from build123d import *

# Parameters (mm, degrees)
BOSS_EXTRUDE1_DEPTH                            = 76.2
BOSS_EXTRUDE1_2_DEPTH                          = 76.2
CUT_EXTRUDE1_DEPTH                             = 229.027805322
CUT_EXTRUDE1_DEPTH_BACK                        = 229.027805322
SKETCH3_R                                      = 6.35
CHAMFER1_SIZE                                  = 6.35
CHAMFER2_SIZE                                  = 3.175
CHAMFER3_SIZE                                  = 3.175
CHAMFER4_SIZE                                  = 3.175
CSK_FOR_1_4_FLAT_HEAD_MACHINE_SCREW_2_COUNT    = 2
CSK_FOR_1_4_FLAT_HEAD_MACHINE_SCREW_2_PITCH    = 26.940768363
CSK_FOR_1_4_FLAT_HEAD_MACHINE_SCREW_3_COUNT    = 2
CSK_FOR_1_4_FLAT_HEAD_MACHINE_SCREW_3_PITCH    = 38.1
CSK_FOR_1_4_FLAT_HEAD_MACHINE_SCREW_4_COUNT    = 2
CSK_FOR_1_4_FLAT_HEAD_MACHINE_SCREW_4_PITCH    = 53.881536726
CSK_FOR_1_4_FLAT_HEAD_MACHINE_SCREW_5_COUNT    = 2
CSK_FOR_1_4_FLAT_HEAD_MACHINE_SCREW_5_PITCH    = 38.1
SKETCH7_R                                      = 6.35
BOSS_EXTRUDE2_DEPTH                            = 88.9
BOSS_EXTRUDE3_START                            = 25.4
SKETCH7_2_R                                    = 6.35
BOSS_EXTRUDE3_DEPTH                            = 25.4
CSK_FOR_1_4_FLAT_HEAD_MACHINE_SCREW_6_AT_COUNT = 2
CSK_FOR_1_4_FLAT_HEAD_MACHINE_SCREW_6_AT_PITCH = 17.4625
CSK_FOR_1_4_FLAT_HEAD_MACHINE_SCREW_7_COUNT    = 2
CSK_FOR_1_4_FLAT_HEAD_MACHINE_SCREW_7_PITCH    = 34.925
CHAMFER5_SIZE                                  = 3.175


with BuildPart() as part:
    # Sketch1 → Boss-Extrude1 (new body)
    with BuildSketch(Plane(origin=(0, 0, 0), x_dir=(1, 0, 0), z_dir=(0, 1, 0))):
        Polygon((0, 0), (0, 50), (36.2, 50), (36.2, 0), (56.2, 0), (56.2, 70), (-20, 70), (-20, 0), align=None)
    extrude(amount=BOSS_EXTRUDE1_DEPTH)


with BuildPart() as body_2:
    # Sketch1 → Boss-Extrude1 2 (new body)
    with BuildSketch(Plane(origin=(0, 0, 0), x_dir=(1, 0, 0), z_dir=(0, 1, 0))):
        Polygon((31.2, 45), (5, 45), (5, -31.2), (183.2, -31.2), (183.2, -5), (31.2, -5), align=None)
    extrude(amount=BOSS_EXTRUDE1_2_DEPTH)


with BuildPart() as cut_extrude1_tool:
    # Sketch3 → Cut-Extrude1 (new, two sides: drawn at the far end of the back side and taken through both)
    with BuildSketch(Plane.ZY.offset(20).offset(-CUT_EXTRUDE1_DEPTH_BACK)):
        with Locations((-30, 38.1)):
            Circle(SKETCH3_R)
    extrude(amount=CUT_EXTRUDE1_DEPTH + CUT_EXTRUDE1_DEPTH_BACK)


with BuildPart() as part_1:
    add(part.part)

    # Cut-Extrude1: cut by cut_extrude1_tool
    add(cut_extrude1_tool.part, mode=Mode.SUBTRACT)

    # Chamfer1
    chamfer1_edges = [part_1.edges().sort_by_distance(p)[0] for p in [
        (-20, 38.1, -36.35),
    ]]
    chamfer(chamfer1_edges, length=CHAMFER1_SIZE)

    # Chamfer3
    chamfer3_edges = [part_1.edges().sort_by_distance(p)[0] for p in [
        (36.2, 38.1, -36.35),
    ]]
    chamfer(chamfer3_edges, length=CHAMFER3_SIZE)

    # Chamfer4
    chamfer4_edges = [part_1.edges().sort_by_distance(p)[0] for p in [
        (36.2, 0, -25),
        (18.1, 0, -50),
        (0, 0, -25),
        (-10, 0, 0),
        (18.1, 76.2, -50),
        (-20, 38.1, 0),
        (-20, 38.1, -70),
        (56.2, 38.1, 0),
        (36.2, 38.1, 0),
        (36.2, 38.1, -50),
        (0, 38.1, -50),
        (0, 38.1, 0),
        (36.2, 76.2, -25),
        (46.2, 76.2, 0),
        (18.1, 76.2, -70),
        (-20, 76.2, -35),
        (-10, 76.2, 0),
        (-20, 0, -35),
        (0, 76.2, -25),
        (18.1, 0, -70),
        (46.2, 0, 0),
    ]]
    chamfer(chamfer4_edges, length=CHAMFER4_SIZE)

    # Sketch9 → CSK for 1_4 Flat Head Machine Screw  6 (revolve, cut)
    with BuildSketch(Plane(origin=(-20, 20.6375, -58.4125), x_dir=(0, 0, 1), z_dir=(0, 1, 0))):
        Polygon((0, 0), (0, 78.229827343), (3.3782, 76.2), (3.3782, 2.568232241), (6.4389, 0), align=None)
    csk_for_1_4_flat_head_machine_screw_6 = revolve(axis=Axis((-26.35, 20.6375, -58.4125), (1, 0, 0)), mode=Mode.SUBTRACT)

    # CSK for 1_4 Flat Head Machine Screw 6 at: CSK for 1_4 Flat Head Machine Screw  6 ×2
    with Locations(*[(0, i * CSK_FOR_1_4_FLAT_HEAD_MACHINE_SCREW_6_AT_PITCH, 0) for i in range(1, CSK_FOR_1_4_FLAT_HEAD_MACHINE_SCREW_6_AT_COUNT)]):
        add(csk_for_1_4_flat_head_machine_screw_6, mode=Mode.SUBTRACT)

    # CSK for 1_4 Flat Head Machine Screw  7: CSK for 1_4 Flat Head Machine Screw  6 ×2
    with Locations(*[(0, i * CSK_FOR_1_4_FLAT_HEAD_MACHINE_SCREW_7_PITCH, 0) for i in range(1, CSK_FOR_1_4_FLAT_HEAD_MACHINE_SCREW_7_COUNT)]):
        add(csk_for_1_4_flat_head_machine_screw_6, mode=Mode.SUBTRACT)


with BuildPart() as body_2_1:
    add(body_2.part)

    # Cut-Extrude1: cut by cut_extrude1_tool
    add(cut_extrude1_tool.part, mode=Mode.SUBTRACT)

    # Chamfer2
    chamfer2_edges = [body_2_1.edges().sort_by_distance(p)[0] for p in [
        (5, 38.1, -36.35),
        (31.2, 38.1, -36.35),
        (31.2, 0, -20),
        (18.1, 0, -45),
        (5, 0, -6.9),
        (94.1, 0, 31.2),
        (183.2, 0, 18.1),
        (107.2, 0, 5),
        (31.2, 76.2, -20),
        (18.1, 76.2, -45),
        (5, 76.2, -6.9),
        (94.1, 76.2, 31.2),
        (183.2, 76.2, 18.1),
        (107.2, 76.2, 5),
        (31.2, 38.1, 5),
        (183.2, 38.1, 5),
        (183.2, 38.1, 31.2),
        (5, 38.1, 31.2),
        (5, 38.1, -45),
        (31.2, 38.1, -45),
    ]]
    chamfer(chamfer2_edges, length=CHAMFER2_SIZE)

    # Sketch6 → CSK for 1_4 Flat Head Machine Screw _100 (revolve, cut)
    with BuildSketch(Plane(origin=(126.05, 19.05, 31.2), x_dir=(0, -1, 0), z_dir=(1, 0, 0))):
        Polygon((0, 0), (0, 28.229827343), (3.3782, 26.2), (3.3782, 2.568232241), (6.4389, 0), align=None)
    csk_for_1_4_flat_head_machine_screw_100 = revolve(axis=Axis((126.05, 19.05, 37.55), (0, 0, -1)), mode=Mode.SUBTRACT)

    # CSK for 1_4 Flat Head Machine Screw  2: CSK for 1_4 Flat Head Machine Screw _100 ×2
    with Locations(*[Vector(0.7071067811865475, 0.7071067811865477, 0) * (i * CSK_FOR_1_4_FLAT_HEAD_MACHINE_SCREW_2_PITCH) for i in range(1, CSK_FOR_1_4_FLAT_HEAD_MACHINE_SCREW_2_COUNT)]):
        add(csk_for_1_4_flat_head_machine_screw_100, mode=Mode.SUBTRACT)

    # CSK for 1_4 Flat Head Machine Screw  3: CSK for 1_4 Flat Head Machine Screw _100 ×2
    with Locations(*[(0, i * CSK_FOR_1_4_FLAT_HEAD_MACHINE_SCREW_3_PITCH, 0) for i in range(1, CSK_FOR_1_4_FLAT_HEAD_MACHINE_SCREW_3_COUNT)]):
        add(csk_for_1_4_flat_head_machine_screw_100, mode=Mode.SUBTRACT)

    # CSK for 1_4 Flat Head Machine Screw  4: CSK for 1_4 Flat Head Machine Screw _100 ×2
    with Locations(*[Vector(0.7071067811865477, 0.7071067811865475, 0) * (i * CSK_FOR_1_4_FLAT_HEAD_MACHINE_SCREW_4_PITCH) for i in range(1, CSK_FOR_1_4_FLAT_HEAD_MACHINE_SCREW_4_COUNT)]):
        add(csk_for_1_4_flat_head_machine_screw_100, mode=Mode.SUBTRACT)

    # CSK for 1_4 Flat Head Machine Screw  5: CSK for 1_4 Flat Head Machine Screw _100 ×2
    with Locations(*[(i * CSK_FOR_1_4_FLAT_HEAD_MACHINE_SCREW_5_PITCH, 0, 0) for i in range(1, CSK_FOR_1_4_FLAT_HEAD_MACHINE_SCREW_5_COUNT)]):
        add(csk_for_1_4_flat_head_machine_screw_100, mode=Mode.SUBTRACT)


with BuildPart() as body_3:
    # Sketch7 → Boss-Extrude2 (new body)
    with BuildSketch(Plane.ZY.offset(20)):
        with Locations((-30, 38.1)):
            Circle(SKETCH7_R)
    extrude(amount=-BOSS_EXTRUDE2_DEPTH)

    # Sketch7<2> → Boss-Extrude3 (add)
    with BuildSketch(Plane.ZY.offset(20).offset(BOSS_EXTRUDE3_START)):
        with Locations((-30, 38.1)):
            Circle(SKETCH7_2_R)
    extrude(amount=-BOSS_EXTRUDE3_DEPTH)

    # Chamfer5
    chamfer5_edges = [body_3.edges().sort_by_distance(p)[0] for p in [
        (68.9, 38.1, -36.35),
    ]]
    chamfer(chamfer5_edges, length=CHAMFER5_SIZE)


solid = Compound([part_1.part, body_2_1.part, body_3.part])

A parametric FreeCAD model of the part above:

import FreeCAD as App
import Part
import Sketcher
from FreeCAD import Vector
Q = App.Units.Quantity


def edges_at(feature, points):
    """Names of the edges that pass closest to the given points."""
    edges = feature.Shape.Edges
    near = lambda p: min(range(len(edges)), key=lambda i: edges[i].distToShape(Part.Vertex(*p))[0])
    return sorted({f"Edge{near(p) + 1}" for p in points})


def add_polygon(sketch, points):
    """Adds a closed chain of lines whose ends are joined by coincident constraints."""
    first, n = sketch.GeometryCount, len(points)
    for a, b in zip(points, points[1:] + points[:1]):
        sketch.addGeometry(Part.LineSegment(App.Vector(*a, 0), App.Vector(*b, 0)), False)
    for i in range(n):
        sketch.addConstraint(Sketcher.Constraint("Coincident", first + i, 2, first + (i + 1) % n, 1))

doc = App.newDocument("Part")
body = doc.addObject("PartDesign::Body", "Body")

sketch1 = body.newObject("Sketcher::SketchObject", "Sketch")
sketch1.AttachmentSupport = (doc.getObject("XZ_Plane"), [""])
sketch1.MapMode = "FlatFace"
add_polygon(sketch1, [(0, 0), (0, -50), (36.2, -50), (36.2, 0), (56.2, 0), (56.2, -70), (-20, -70), (-20, 0)])
sketch1.addConstraint(Sketcher.Constraint("Vertical", 0))
sketch1.addConstraint(Sketcher.Constraint("Horizontal", 1))
sketch1.addConstraint(Sketcher.Constraint("Vertical", 2))
sketch1.addConstraint(Sketcher.Constraint("Horizontal", 3))
sketch1.addConstraint(Sketcher.Constraint("Vertical", 4))
sketch1.addConstraint(Sketcher.Constraint("Horizontal", 5))
sketch1.addConstraint(Sketcher.Constraint("Vertical", 6))
sketch1.addConstraint(Sketcher.Constraint("Horizontal", 7))
sketch1.addConstraint(Sketcher.Constraint("Coincident", 7, 2, -1, 1))
sketch1.addConstraint(Sketcher.Constraint("PointOnObject", 2, 2, -1))
sketch1.addConstraint(Sketcher.Constraint("Equal", 3, 7))
sketch1.addConstraint(Sketcher.Constraint("DistanceX", 3, 1, 3, 2, 20.0))
sketch1.addConstraint(Sketcher.Constraint("DistanceY", 0, 2, 0, 1, 50.0))
sketch1.addConstraint(Sketcher.Constraint("DistanceY", 4, 2, 4, 1, 70.0))
sketch1.addConstraint(Sketcher.Constraint("DistanceX", 1, 1, 1, 2, 36.2))
pad1 = body.newObject("PartDesign::Pad", "Pad")
pad1.Profile = sketch1
pad1.Length = 76.2
pad1.Reversed = True
body2 = doc.addObject("PartDesign::Body", "Body001")

sketch2 = body2.newObject("Sketcher::SketchObject", "Sketch001")
sketch2.AttachmentSupport = (doc.getObject("XZ_Plane001"), [""])
sketch2.MapMode = "FlatFace"
add_polygon(sketch2, [(31.2, -45), (5, -45), (5, 31.2), (183.2, 31.2), (183.2, 5), (31.2, 5)])
sketch2.addConstraint(Sketcher.Constraint("Horizontal", 0))
sketch2.addConstraint(Sketcher.Constraint("Vertical", 1))
sketch2.addConstraint(Sketcher.Constraint("Horizontal", 2))
sketch2.addConstraint(Sketcher.Constraint("Vertical", 3))
sketch2.addConstraint(Sketcher.Constraint("Horizontal", 4))
sketch2.addConstraint(Sketcher.Constraint("Vertical", 5))
sketch2.addConstraint(Sketcher.Constraint("Equal", 0, 3))
sketch2.addConstraint(Sketcher.Constraint("DistanceX", 4, 2, 4, 1, 152.0))
sketch2.addConstraint(Sketcher.Constraint("DistanceY", 5, 2, 5, 1, 50.0))
sketch2.addConstraint(Sketcher.Constraint("DistanceX", 0, 2, 0, 1, 26.2))
sketch2.addConstraint(Sketcher.Constraint("DistanceX", -1, 1, 0, 2, 5.0))
sketch2.addConstraint(Sketcher.Constraint("DistanceY", 0, 2, -1, 1, 45.0))
pad2 = body2.newObject("PartDesign::Pad", "Pad001")
pad2.Profile = sketch2
pad2.Length = 76.2
pad2.Reversed = True
body3 = doc.addObject("PartDesign::Body", "Body002")

sketch3 = body3.newObject("Sketcher::SketchObject", "Sketch002")
sketch3.AttachmentSupport = (doc.getObject("YZ_Plane002"), [""])
sketch3.MapMode = "FlatFace"
sketch3.AttachmentOffset = App.Placement(Vector(0, 0, -20), App.Rotation())
sketch3.addGeometry(Part.Circle(Vector(38.1, -30, 0), Vector(0, 0, 1), 6.35), False)
sketch3.addConstraint(Sketcher.Constraint("Diameter", 0, 12.7))
sketch3.addConstraint(Sketcher.Constraint("DistanceY", 0, 3, -1, 1, 30.0))
sketch3.addConstraint(Sketcher.Constraint("DistanceX", -1, 1, 0, 3, 38.1))
pad3 = body3.newObject("PartDesign::Pad", "Pad002")
pad3.Profile = sketch3
pad3.Type = "TwoLengths"
pad3.Length = 229.027805
pad3.Length2 = 229.027805
pad3.Reversed = True
doc.recompute()

body4 = doc.addObject("PartDesign::Body", "Body003")
body4.BaseFeature = body3
boolean = body.newObject("PartDesign::Boolean", "Boolean")
boolean.Type = "Cut"
boolean.addObjects([body4])
doc.recompute()

chamfer = body.newObject("PartDesign::Chamfer", "Chamfer")
chamfer.Base = (boolean, edges_at(boolean, [(-20, 38.1, -36.35)]))
chamfer.Size = 6.35
doc.recompute()

chamfer2 = body.newObject("PartDesign::Chamfer", "Chamfer001")
chamfer2.Base = (chamfer, edges_at(chamfer, [(36.2, 38.1, -36.35)]))
chamfer2.Size = 3.175
doc.recompute()

chamfer3 = body.newObject("PartDesign::Chamfer", "Chamfer002")
chamfer3.Base = (chamfer2, edges_at(chamfer2, [
    (36.2, 0, -25),
    (18.1, 0, -50),
    (0, 0, -25),
    (-10, 0, 0),
    (18.1, 76.2, -50),
    (-20, 38.1, 0),
    (-20, 38.1, -70),
    (56.2, 38.1, 0),
    (36.2, 38.1, 0),
    (36.2, 38.1, -50),
    (0, 38.1, -50),
    (0, 38.1, 0),
    (36.2, 76.2, -25),
    (46.2, 76.2, 0),
    (18.1, 76.2, -70),
    (-20, 76.2, -35),
    (-10, 76.2, 0),
    (-20, 0, -35),
    (0, 76.2, -25),
    (18.1, 0, -70),
    (46.2, 0, 0),
]))
chamfer3.Size = 3.175

sketch4 = body.newObject("Sketcher::SketchObject", "Sketch003")
sketch4.AttachmentSupport = (doc.getObject("XZ_Plane"), [""])
sketch4.MapMode = "FlatFace"
sketch4.AttachmentOffset = App.Placement(Vector(0, 0, -20.6375), App.Rotation())
add_polygon(sketch4, [(58.229827, -58.4125), (-20, -58.4125), (-20, -51.9736), (-17.431768, -55.0343), (56.2, -55.0343)])
sketch4.addGeometry(Part.LineSegment(Vector(-20, -58.4125, 0), Vector(58.229827, -58.4125, 0)), True)
sketch4.addConstraint(Sketcher.Constraint("Horizontal", 0))
sketch4.addConstraint(Sketcher.Constraint("Vertical", 1))
sketch4.addConstraint(Sketcher.Constraint("Horizontal", 3))
sketch4.addConstraint(Sketcher.Constraint("Horizontal", 5))
sketch4.addConstraint(Sketcher.Constraint("Coincident", 5, 1, 0, 2))
sketch4.addConstraint(Sketcher.Constraint("Equal", 0, 5))
sketch4.addConstraint(Sketcher.Constraint("Angle", 2, Q("-50 deg")))
sketch4.addConstraint(Sketcher.Constraint("Angle", 4, Q("-59 deg")))
sketch4.addConstraint(Sketcher.Constraint("DistanceX", 0, 2, -1, 1, 20.0))
sketch4.addConstraint(Sketcher.Constraint("DistanceX", -1, 1, 3, 2, 56.2))
sketch4.addConstraint(Sketcher.Constraint("DistanceY", 1, 1, 1, 2, 6.4389))
sketch4.addConstraint(Sketcher.Constraint("DistanceY", 0, 2, -1, 1, 58.4125))
sketch4.addConstraint(Sketcher.Constraint("DistanceY", 2, 2, -1, 1, 55.0343))
groove = body.newObject("PartDesign::Groove", "Groove")
groove.Profile = sketch4
groove.ReferenceAxis = (sketch4, ["Axis0"])
groove.Angle = 360
doc.recompute()

linearpattern = body.newObject("PartDesign::LinearPattern", "LinearPattern")
linearpattern.Originals = [groove]
linearpattern.Direction = (doc.getObject("Y_Axis"), [""])
linearpattern.Mode = "offset"
linearpattern.Offset = 17.4625
linearpattern.Occurrences = 2
body.Tip = linearpattern
doc.recompute()

linearpattern2 = body.newObject("PartDesign::LinearPattern", "LinearPattern001")
linearpattern2.Originals = [groove]
linearpattern2.Direction = (doc.getObject("Y_Axis"), [""])
linearpattern2.Mode = "offset"
linearpattern2.Offset = 34.925
linearpattern2.Occurrences = 2
body.Tip = linearpattern2
doc.recompute()

boolean2 = body2.newObject("PartDesign::Boolean", "Boolean001")
boolean2.Type = "Cut"
boolean2.addObjects([body3])
doc.recompute()

chamfer4 = body2.newObject("PartDesign::Chamfer", "Chamfer003")
chamfer4.Base = (boolean2, ["Edge1"])
chamfer4.UseAllEdges = True
chamfer4.Size = 3.175

sketch5 = body2.newObject("Sketcher::SketchObject", "Sketch004")
sketch5.AttachmentSupport = (doc.getObject("YZ_Plane001"), [""])
sketch5.MapMode = "FlatFace"
sketch5.AttachmentOffset = App.Placement(Vector(0, 0, 126.05), App.Rotation())
add_polygon(sketch5, [(19.05, 2.970173), (19.05, 31.2), (12.6111, 31.2), (15.6718, 28.631768), (15.6718, 5)])
sketch5.addGeometry(Part.LineSegment(Vector(19.05, 31.2, 0), Vector(19.05, 2.970173, 0)), True)
sketch5.addConstraint(Sketcher.Constraint("Vertical", 0))
sketch5.addConstraint(Sketcher.Constraint("Horizontal", 1))
sketch5.addConstraint(Sketcher.Constraint("Vertical", 3))
sketch5.addConstraint(Sketcher.Constraint("Vertical", 5))
sketch5.addConstraint(Sketcher.Constraint("Coincident", 5, 1, 0, 2))
sketch5.addConstraint(Sketcher.Constraint("Equal", 0, 5))
sketch5.addConstraint(Sketcher.Constraint("Angle", 2, Q("-40 deg")))
sketch5.addConstraint(Sketcher.Constraint("Angle", 4, Q("-31 deg")))
sketch5.addConstraint(Sketcher.Constraint("DistanceY", -1, 1, 3, 2, 5.0))
sketch5.addConstraint(Sketcher.Constraint("DistanceY", -1, 1, 0, 2, 31.2))
sketch5.addConstraint(Sketcher.Constraint("DistanceX", -1, 1, 0, 2, 19.05))
sketch5.addConstraint(Sketcher.Constraint("DistanceX", 1, 2, 1, 1, 6.4389))
sketch5.addConstraint(Sketcher.Constraint("DistanceX", -1, 1, 2, 2, 15.6718))
groove2 = body2.newObject("PartDesign::Groove", "Groove001")
groove2.Profile = sketch5
groove2.ReferenceAxis = (sketch5, ["Axis0"])
groove2.Angle = 360
doc.recompute()

datumline = body2.newObject("PartDesign::Line", "DatumLine")
datumline.Placement = App.Placement(Vector(0, 0, 0), App.Rotation(Vector(0, 0, 1), Vector(0.707106781, 0.707106781, 0)))
linearpattern3 = body2.newObject("PartDesign::LinearPattern", "LinearPattern002")
linearpattern3.Originals = [groove2]
linearpattern3.Direction = (datumline, [""])
linearpattern3.Mode = "offset"
linearpattern3.Offset = 26.940768
linearpattern3.Occurrences = 2
body2.Tip = linearpattern3
doc.recompute()

linearpattern4 = body2.newObject("PartDesign::LinearPattern", "LinearPattern003")
linearpattern4.Originals = [groove2]
linearpattern4.Direction = (doc.getObject("Y_Axis001"), [""])
linearpattern4.Mode = "offset"
linearpattern4.Offset = 38.1
linearpattern4.Occurrences = 2
body2.Tip = linearpattern4
doc.recompute()

datumline2 = body2.newObject("PartDesign::Line", "DatumLine001")
datumline2.Placement = App.Placement(Vector(0, 0, 0), App.Rotation(Vector(0, 0, 1), Vector(0.707106781, 0.707106781, 0)))
linearpattern5 = body2.newObject("PartDesign::LinearPattern", "LinearPattern004")
linearpattern5.Originals = [groove2]
linearpattern5.Direction = (datumline2, [""])
linearpattern5.Mode = "offset"
linearpattern5.Offset = 53.881537
linearpattern5.Occurrences = 2
body2.Tip = linearpattern5
doc.recompute()

linearpattern6 = body2.newObject("PartDesign::LinearPattern", "LinearPattern005")
linearpattern6.Originals = [groove2]
linearpattern6.Direction = (doc.getObject("X_Axis001"), [""])
linearpattern6.Mode = "offset"
linearpattern6.Offset = 38.1
linearpattern6.Occurrences = 2
body2.Tip = linearpattern6
body5 = doc.addObject("PartDesign::Body", "Body004")

sketch6 = body5.newObject("Sketcher::SketchObject", "Sketch005")
sketch6.AttachmentSupport = (doc.getObject("YZ_Plane004"), [""])
sketch6.MapMode = "FlatFace"
sketch6.AttachmentOffset = App.Placement(Vector(0, 0, -20), App.Rotation())
sketch6.addGeometry(Part.Circle(Vector(38.1, -30, 0), Vector(0, 0, 1), 6.35), False)
sketch6.addConstraint(Sketcher.Constraint("Diameter", 0, 12.7))
sketch6.addConstraint(Sketcher.Constraint("DistanceY", 0, 3, -1, 1, 30.0))
sketch6.addConstraint(Sketcher.Constraint("DistanceX", -1, 1, 0, 3, 38.1))
pad4 = body5.newObject("PartDesign::Pad", "Pad003")
pad4.Profile = sketch6
pad4.Length = 88.9

sketch7 = body5.newObject("Sketcher::SketchObject", "Sketch006")
sketch7.AttachmentSupport = (doc.getObject("YZ_Plane004"), [""])
sketch7.MapMode = "FlatFace"
sketch7.AttachmentOffset = App.Placement(Vector(0, 0, -45.4), App.Rotation())
sketch7.addGeometry(Part.Circle(Vector(38.1, -30, 0), Vector(0, 0, 1), 6.35), False)
sketch7.addConstraint(Sketcher.Constraint("Diameter", 0, 12.7))
sketch7.addConstraint(Sketcher.Constraint("DistanceY", 0, 3, -1, 1, 30.0))
sketch7.addConstraint(Sketcher.Constraint("DistanceX", -1, 1, 0, 3, 38.1))
pad5 = body5.newObject("PartDesign::Pad", "Pad004")
pad5.Profile = sketch7
pad5.Length = 25.4
doc.recompute()

chamfer5 = body5.newObject("PartDesign::Chamfer", "Chamfer004")
chamfer5.Base = (pad5, edges_at(pad5, [(68.9, 38.1, -36.35)]))
chamfer5.Size = 3.175

doc.recompute()
